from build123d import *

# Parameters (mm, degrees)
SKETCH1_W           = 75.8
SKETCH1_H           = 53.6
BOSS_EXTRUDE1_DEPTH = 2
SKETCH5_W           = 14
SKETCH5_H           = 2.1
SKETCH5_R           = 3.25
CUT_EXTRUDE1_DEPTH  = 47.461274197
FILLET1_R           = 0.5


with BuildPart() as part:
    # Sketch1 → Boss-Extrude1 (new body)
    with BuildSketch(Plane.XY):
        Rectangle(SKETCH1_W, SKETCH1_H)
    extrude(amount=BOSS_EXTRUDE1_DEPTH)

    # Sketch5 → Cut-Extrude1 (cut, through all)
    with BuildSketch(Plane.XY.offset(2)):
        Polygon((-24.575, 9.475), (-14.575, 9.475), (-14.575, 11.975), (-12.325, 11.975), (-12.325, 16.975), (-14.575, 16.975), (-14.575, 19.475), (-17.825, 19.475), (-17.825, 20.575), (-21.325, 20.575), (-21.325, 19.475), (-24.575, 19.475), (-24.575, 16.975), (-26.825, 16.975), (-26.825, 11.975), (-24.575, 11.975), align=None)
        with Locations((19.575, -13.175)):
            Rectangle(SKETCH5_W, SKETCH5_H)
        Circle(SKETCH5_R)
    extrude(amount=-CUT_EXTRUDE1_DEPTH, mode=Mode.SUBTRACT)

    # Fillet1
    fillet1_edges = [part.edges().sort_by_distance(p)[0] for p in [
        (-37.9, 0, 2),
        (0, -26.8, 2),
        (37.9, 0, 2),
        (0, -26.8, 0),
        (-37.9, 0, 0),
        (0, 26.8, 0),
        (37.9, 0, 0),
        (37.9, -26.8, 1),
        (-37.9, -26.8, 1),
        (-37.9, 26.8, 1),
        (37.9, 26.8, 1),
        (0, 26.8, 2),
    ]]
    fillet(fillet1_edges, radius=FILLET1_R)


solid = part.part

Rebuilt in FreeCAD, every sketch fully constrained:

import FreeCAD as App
import Part
import Sketcher

V = App.Vector
Q = App.Units.Quantity


def edges_at(feature, points):
    """Names of the edges that pass closest to the given points."""
    edges = feature.Shape.Edges
    near = lambda p: min(range(len(edges)), key=lambda i: edges[i].distToShape(Part.Vertex(*p))[0])
    return sorted({f"Edge{near(p) + 1}" for p in points})


def add_polygon(sketch, points):
    """Adds a closed chain of lines whose ends are joined by coincident constraints."""
    first, n = sketch.GeometryCount, len(points)
    for a, b in zip(points, points[1:] + points[:1]):
        sketch.addGeometry(Part.LineSegment(App.Vector(*a, 0), App.Vector(*b, 0)), False)
    for i in range(n):
        sketch.addConstraint(Sketcher.Constraint("Coincident", first + i, 2, first + (i + 1) % n, 1))

doc = App.newDocument("Part")
body = doc.addObject("PartDesign::Body", "Body")

sketch1 = doc.addObject("Sketcher::SketchObject", "Sketch")
body.addObject(sketch1)
sketch1.AttachmentSupport = (doc.XY_Plane, [""])
sketch1.MapMode = "FlatFace"
add_polygon(sketch1, [(-37.9, 26.8), (-37.9, -26.8), (37.9, -26.8), (37.9, 26.8)])
sketch1.addConstraint(Sketcher.Constraint("Vertical", 0))
sketch1.addConstraint(Sketcher.Constraint("Horizontal", 1))
sketch1.addConstraint(Sketcher.Constraint("Vertical", 2))
sketch1.addConstraint(Sketcher.Constraint("Horizontal", 3))
sketch1.addConstraint(Sketcher.Constraint("Symmetric", 0, 2, 2, 2, -1, 1))
sketch1.addConstraint(Sketcher.Constraint("DistanceX", 1, 1, 1, 2, Q("75.8 mm")))
sketch1.addConstraint(Sketcher.Constraint("DistanceY", 0, 2, 0, 1, Q("53.6 mm")))
pad1 = doc.addObject("PartDesign::Pad", "Pad")
body.addObject(pad1)
pad1.Profile = sketch1
pad1.Length = 2

sketch2 = doc.addObject("Sketcher::SketchObject", "Sketch001")
body.addObject(sketch2)
sketch2.AttachmentSupport = (doc.XY_Plane, [""])
sketch2.MapMode = "FlatFace"
sketch2.AttachmentOffset = App.Placement(V(0, 0, 2), App.Rotation())
add_polygon(sketch2, [(-24.575, 9.475), (-14.575, 9.475), (-14.575, 11.975), (-12.325, 11.975), (-12.325, 16.975), (-14.575, 16.975), (-14.575, 19.475), (-17.825, 19.475), (-17.825, 20.575), (-21.325, 20.575), (-21.325, 19.475), (-24.575, 19.475), (-24.575, 16.975), (-26.825, 16.975), (-26.825, 11.975), (-24.575, 11.975)])
add_polygon(sketch2, [(12.575, -12.125), (12.575, -14.225), (26.575, -14.225), (26.575, -12.125)])
sketch2.addGeometry(Part.Circle(V(0, 0, 0), V(0, 0, 1), 3.25), False)
sketch2.addConstraint(Sketcher.Constraint("Horizontal", 0))
sketch2.addConstraint(Sketcher.Constraint("Vertical", 1))
sketch2.addConstraint(Sketcher.Constraint("Horizontal", 2))
sketch2.addConstraint(Sketcher.Constraint("Vertical", 3))
sketch2.addConstraint(Sketcher.Constraint("Horizontal", 4))
sketch2.addConstraint(Sketcher.Constraint("Vertical", 5))
sketch2.addConstraint(Sketcher.Constraint("Horizontal", 6))
sketch2.addConstraint(Sketcher.Constraint("Vertical", 7))
sketch2.addConstraint(Sketcher.Constraint("Horizontal", 8))
sketch2.addConstraint(Sketcher.Constraint("Vertical", 9))
sketch2.addConstraint(Sketcher.Constraint("Horizontal", 10))
sketch2.addConstraint(Sketcher.Constraint("Vertical", 11))
sketch2.addConstraint(Sketcher.Constraint("Horizontal", 12))
sketch2.addConstraint(Sketcher.Constraint("Vertical", 13))
sketch2.addConstraint(Sketcher.Constraint("Horizontal", 14))
sketch2.addConstraint(Sketcher.Constraint("Vertical", 15))
sketch2.addConstraint(Sketcher.Constraint("Vertical", 16))
sketch2.addConstraint(Sketcher.Constraint("Horizontal", 17))
sketch2.addConstraint(Sketcher.Constraint("Vertical", 18))
sketch2.addConstraint(Sketcher.Constraint("Horizontal", 19))
sketch2.addConstraint(Sketcher.Constraint("Coincident", 20, 3, -1, 1))
sketch2.addConstraint(Sketcher.Constraint("Horizontal", 6, 2, 9, 2))
sketch2.addConstraint(Sketcher.Constraint("Horizontal", 4, 2, 11, 2))
sketch2.addConstraint(Sketcher.Constraint("Horizontal", 2, 2, 13, 2))
sketch2.addConstraint(Sketcher.Constraint("Vertical", 1, 2, 4, 2))
sketch2.addConstraint(Sketcher.Constraint("Vertical", 11, 2, 14, 2))
sketch2.addConstraint(Sketcher.Constraint("Equal", 6, 10))
sketch2.addConstraint(Sketcher.Constraint("Equal", 4, 12))
sketch2.addConstraint(Sketcher.Constraint("Equal", 1, 5))
sketch2.addConstraint(Sketcher.Constraint("Diameter", 20, Q("6.5 mm")))
sketch2.addConstraint(Sketcher.Constraint("DistanceX", 0, 1, 0, 2, Q("10 mm")))
sketch2.addConstraint(Sketcher.Constraint("DistanceX", 17, 1, 17, 2, Q("14 mm")))
sketch2.addConstraint(Sketcher.Constraint("DistanceY", 3, 1, 3, 2, Q("5 mm")))
sketch2.addConstraint(Sketcher.Constraint("DistanceX", 8, 2, 8, 1, Q("3.5 mm")))
sketch2.addConstraint(Sketcher.Constraint("DistanceY", 1, 1, 1, 2, Q("2.5 mm")))
sketch2.addConstraint(Sketcher.Constraint("DistanceY", 7, 1, 7, 2, Q("1.1 mm")))
sketch2.addConstraint(Sketcher.Constraint("DistanceY", 16, 2, 16, 1, Q("2.1 mm")))
sketch2.addConstraint(Sketcher.Constraint("DistanceX", 8, 2, 3, 2, Q("9 mm")))
sketch2.addConstraint(Sketcher.Constraint("DistanceY", 16, 2, 0, 2, Q("23.7 mm")))
sketch2.addConstraint(Sketcher.Constraint("DistanceX", 2, 2, 16, 2, Q("24.9 mm")))
sketch2.addConstraint(Sketcher.Constraint("DistanceX", 0, 2, -1, 1, Q("14.575 mm")))
sketch2.addConstraint(Sketcher.Constraint("DistanceY", -1, 1, 0, 2, Q("9.475 mm")))
pocket1 = doc.addObject("PartDesign::Pocket", "Pocket")
body.addObject(pocket1)
pocket1.Profile = sketch2
pocket1.Type = "ThroughAll"
doc.recompute()

fillet = doc.addObject("PartDesign::Fillet", "Fillet")
body.addObject(fillet)
fillet.Base = (pocket1, edges_at(pocket1, [
    (-37.9, 0, 2),
    (0, -26.8, 2),
    (37.9, 0, 2),
    (0, -26.8, 0),
    (-37.9, 0, 0),
    (0, 26.8, 0),
    (37.9, 0, 0),
    (37.9, -26.8, 1),
    (-37.9, -26.8, 1),
    (-37.9, 26.8, 1),
    (37.9, 26.8, 1),
    (0, 26.8, 2),
]))
fillet.Radius = 0.5

doc.recompute()
